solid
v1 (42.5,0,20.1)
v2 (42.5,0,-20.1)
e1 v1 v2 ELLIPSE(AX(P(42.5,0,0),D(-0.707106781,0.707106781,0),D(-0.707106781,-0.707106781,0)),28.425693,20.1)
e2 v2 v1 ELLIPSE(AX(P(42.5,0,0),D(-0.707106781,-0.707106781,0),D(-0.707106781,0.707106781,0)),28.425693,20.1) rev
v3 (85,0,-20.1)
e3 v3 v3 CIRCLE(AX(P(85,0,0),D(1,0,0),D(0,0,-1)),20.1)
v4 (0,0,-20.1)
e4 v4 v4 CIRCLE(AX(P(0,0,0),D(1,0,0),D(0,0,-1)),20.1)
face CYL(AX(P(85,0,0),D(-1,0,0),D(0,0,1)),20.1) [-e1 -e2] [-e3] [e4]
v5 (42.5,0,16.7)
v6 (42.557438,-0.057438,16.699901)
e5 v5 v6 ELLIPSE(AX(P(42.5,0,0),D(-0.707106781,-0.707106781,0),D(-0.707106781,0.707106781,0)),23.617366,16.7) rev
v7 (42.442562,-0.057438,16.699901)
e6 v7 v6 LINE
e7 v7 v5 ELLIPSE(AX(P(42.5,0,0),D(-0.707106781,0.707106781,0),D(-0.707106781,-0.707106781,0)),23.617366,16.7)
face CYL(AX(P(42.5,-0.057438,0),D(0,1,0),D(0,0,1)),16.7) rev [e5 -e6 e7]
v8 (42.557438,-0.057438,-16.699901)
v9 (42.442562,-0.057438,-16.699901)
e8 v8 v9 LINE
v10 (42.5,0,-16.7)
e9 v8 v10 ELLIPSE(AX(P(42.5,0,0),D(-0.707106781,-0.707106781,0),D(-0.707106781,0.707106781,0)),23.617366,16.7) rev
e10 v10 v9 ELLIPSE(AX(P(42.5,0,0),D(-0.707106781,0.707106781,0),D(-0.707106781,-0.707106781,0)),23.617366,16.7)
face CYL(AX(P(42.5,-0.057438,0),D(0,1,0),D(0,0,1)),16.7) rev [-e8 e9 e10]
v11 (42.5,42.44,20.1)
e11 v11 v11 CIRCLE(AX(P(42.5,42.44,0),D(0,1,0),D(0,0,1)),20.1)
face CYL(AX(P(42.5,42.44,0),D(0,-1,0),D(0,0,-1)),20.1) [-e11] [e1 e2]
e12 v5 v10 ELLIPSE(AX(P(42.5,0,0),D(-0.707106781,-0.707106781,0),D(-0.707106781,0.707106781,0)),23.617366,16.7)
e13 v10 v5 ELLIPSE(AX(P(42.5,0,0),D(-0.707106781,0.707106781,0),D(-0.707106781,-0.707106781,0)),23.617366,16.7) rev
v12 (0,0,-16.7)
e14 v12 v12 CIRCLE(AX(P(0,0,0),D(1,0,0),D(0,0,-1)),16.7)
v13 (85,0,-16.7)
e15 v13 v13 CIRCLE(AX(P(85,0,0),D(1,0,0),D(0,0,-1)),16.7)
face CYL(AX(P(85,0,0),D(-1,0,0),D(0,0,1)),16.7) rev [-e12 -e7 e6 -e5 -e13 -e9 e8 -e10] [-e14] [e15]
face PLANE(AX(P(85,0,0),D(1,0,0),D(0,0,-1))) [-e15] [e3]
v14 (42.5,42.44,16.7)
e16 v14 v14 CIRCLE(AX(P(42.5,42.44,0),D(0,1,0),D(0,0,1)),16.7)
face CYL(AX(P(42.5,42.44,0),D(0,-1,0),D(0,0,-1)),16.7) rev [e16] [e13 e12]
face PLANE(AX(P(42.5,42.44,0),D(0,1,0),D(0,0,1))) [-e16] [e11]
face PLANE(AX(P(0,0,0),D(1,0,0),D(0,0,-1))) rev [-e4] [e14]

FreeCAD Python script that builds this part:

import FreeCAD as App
import Part
import Sketcher

doc = App.newDocument("Part")
body = doc.addObject("PartDesign::Body", "Body")

# Sketch on YZ plane
sketch1 = doc.addObject("Sketcher::SketchObject", "Sketch")
body.addObject(sketch1)
sketch1.AttachmentSupport = (doc.YZ_Plane, [""])
sketch1.MapMode = "FlatFace"
sketch1.addGeometry([
    Part.Circle(App.Vector(0, 0, 0), App.Vector(0, 0, 1), 20.1),
    Part.Circle(App.Vector(0, 0, 0), App.Vector(0, 0, 1), 16.7),
], False)
sketch1.addConstraint([
    Sketcher.Constraint("Coincident", 0, 3, -1, 1),
    Sketcher.Constraint("Coincident", 1, 3, -1, 1),
    Sketcher.Constraint("Diameter", 0, 40.2),
    Sketcher.Constraint("Diameter", 1, 33.4),
])
pad1 = doc.addObject("PartDesign::Pad", "Pad")
body.addObject(pad1)
pad1.Profile = sketch1
pad1.Length = 85

# Sketch on XZ plane
sketch2 = doc.addObject("Sketcher::SketchObject", "Sketch001")
body.addObject(sketch2)
sketch2.AttachmentSupport = (doc.XZ_Plane, [""])
sketch2.MapMode = "FlatFace"
sketch2.addGeometry([
    Part.Circle(App.Vector(42.5, 0, 0), App.Vector(0, 0, 1), 20.1),
    Part.Circle(App.Vector(42.5, 0, 0), App.Vector(0, 0, 1), 16.7),
], False)
sketch2.addConstraint([
    Sketcher.Constraint("Coincident", 1, 3, 0, 3),
    Sketcher.Constraint("PointOnObject", 0, 3, -1),
    Sketcher.Constraint("Diameter", 0, 40.2),
    Sketcher.Constraint("Diameter", 1, 33.4),
    Sketcher.Constraint("DistanceX", -1, 1, 0, 3, 42.5),
])
pad2 = doc.addObject("PartDesign::Pad", "Pad001")
body.addObject(pad2)
pad2.Profile = sketch2
pad2.Length = 42.44
pad2.Reversed = True

# Sketch on YZ plane
sketch3 = doc.addObject("Sketcher::SketchObject", "Sketch002")
body.addObject(sketch3)
sketch3.AttachmentSupport = (doc.YZ_Plane, [""])
sketch3.MapMode = "FlatFace"
sketch3.addGeometry(Part.Circle(App.Vector(0, 0, 0), App.Vector(0, 0, 1), 16.7), False)
sketch3.addConstraint([
    Sketcher.Constraint("Coincident", 0, 3, -1, 1),
    Sketcher.Constraint("Diameter", 0, 33.4),
])
pocket1 = doc.addObject("PartDesign::Pocket", "Pocket")
body.addObject(pocket1)
pocket1.Profile = sketch3
pocket1.Length = 84.497438
pocket1.Reversed = True

# Sketch on XZ plane
sketch4 = doc.addObject("Sketcher::SketchObject", "Sketch003")
body.addObject(sketch4)
sketch4.AttachmentSupport = (doc.XZ_Plane, [""])
sketch4.MapMode = "FlatFace"
sketch4.AttachmentOffset = App.Placement(App.Vector(0, 0, 0.057438), App.Rotation())
sketch4.addGeometry(Part.Circle(App.Vector(42.5, 0, 0), App.Vector(0, 0, 1), 16.7), False)
sketch4.addConstraint([
    Sketcher.Constraint("PointOnObject", 0, 3, -1),
    Sketcher.Constraint("Diameter", 0, 33.4),
    Sketcher.Constraint("DistanceX", -1, 1, 0, 3, 42.5),
])
pocket2 = doc.addObject("PartDesign::Pocket", "Pocket001")
body.addObject(pocket2)
pocket2.Profile = sketch4
pocket2.Length = 42.497438

doc.recompute()
